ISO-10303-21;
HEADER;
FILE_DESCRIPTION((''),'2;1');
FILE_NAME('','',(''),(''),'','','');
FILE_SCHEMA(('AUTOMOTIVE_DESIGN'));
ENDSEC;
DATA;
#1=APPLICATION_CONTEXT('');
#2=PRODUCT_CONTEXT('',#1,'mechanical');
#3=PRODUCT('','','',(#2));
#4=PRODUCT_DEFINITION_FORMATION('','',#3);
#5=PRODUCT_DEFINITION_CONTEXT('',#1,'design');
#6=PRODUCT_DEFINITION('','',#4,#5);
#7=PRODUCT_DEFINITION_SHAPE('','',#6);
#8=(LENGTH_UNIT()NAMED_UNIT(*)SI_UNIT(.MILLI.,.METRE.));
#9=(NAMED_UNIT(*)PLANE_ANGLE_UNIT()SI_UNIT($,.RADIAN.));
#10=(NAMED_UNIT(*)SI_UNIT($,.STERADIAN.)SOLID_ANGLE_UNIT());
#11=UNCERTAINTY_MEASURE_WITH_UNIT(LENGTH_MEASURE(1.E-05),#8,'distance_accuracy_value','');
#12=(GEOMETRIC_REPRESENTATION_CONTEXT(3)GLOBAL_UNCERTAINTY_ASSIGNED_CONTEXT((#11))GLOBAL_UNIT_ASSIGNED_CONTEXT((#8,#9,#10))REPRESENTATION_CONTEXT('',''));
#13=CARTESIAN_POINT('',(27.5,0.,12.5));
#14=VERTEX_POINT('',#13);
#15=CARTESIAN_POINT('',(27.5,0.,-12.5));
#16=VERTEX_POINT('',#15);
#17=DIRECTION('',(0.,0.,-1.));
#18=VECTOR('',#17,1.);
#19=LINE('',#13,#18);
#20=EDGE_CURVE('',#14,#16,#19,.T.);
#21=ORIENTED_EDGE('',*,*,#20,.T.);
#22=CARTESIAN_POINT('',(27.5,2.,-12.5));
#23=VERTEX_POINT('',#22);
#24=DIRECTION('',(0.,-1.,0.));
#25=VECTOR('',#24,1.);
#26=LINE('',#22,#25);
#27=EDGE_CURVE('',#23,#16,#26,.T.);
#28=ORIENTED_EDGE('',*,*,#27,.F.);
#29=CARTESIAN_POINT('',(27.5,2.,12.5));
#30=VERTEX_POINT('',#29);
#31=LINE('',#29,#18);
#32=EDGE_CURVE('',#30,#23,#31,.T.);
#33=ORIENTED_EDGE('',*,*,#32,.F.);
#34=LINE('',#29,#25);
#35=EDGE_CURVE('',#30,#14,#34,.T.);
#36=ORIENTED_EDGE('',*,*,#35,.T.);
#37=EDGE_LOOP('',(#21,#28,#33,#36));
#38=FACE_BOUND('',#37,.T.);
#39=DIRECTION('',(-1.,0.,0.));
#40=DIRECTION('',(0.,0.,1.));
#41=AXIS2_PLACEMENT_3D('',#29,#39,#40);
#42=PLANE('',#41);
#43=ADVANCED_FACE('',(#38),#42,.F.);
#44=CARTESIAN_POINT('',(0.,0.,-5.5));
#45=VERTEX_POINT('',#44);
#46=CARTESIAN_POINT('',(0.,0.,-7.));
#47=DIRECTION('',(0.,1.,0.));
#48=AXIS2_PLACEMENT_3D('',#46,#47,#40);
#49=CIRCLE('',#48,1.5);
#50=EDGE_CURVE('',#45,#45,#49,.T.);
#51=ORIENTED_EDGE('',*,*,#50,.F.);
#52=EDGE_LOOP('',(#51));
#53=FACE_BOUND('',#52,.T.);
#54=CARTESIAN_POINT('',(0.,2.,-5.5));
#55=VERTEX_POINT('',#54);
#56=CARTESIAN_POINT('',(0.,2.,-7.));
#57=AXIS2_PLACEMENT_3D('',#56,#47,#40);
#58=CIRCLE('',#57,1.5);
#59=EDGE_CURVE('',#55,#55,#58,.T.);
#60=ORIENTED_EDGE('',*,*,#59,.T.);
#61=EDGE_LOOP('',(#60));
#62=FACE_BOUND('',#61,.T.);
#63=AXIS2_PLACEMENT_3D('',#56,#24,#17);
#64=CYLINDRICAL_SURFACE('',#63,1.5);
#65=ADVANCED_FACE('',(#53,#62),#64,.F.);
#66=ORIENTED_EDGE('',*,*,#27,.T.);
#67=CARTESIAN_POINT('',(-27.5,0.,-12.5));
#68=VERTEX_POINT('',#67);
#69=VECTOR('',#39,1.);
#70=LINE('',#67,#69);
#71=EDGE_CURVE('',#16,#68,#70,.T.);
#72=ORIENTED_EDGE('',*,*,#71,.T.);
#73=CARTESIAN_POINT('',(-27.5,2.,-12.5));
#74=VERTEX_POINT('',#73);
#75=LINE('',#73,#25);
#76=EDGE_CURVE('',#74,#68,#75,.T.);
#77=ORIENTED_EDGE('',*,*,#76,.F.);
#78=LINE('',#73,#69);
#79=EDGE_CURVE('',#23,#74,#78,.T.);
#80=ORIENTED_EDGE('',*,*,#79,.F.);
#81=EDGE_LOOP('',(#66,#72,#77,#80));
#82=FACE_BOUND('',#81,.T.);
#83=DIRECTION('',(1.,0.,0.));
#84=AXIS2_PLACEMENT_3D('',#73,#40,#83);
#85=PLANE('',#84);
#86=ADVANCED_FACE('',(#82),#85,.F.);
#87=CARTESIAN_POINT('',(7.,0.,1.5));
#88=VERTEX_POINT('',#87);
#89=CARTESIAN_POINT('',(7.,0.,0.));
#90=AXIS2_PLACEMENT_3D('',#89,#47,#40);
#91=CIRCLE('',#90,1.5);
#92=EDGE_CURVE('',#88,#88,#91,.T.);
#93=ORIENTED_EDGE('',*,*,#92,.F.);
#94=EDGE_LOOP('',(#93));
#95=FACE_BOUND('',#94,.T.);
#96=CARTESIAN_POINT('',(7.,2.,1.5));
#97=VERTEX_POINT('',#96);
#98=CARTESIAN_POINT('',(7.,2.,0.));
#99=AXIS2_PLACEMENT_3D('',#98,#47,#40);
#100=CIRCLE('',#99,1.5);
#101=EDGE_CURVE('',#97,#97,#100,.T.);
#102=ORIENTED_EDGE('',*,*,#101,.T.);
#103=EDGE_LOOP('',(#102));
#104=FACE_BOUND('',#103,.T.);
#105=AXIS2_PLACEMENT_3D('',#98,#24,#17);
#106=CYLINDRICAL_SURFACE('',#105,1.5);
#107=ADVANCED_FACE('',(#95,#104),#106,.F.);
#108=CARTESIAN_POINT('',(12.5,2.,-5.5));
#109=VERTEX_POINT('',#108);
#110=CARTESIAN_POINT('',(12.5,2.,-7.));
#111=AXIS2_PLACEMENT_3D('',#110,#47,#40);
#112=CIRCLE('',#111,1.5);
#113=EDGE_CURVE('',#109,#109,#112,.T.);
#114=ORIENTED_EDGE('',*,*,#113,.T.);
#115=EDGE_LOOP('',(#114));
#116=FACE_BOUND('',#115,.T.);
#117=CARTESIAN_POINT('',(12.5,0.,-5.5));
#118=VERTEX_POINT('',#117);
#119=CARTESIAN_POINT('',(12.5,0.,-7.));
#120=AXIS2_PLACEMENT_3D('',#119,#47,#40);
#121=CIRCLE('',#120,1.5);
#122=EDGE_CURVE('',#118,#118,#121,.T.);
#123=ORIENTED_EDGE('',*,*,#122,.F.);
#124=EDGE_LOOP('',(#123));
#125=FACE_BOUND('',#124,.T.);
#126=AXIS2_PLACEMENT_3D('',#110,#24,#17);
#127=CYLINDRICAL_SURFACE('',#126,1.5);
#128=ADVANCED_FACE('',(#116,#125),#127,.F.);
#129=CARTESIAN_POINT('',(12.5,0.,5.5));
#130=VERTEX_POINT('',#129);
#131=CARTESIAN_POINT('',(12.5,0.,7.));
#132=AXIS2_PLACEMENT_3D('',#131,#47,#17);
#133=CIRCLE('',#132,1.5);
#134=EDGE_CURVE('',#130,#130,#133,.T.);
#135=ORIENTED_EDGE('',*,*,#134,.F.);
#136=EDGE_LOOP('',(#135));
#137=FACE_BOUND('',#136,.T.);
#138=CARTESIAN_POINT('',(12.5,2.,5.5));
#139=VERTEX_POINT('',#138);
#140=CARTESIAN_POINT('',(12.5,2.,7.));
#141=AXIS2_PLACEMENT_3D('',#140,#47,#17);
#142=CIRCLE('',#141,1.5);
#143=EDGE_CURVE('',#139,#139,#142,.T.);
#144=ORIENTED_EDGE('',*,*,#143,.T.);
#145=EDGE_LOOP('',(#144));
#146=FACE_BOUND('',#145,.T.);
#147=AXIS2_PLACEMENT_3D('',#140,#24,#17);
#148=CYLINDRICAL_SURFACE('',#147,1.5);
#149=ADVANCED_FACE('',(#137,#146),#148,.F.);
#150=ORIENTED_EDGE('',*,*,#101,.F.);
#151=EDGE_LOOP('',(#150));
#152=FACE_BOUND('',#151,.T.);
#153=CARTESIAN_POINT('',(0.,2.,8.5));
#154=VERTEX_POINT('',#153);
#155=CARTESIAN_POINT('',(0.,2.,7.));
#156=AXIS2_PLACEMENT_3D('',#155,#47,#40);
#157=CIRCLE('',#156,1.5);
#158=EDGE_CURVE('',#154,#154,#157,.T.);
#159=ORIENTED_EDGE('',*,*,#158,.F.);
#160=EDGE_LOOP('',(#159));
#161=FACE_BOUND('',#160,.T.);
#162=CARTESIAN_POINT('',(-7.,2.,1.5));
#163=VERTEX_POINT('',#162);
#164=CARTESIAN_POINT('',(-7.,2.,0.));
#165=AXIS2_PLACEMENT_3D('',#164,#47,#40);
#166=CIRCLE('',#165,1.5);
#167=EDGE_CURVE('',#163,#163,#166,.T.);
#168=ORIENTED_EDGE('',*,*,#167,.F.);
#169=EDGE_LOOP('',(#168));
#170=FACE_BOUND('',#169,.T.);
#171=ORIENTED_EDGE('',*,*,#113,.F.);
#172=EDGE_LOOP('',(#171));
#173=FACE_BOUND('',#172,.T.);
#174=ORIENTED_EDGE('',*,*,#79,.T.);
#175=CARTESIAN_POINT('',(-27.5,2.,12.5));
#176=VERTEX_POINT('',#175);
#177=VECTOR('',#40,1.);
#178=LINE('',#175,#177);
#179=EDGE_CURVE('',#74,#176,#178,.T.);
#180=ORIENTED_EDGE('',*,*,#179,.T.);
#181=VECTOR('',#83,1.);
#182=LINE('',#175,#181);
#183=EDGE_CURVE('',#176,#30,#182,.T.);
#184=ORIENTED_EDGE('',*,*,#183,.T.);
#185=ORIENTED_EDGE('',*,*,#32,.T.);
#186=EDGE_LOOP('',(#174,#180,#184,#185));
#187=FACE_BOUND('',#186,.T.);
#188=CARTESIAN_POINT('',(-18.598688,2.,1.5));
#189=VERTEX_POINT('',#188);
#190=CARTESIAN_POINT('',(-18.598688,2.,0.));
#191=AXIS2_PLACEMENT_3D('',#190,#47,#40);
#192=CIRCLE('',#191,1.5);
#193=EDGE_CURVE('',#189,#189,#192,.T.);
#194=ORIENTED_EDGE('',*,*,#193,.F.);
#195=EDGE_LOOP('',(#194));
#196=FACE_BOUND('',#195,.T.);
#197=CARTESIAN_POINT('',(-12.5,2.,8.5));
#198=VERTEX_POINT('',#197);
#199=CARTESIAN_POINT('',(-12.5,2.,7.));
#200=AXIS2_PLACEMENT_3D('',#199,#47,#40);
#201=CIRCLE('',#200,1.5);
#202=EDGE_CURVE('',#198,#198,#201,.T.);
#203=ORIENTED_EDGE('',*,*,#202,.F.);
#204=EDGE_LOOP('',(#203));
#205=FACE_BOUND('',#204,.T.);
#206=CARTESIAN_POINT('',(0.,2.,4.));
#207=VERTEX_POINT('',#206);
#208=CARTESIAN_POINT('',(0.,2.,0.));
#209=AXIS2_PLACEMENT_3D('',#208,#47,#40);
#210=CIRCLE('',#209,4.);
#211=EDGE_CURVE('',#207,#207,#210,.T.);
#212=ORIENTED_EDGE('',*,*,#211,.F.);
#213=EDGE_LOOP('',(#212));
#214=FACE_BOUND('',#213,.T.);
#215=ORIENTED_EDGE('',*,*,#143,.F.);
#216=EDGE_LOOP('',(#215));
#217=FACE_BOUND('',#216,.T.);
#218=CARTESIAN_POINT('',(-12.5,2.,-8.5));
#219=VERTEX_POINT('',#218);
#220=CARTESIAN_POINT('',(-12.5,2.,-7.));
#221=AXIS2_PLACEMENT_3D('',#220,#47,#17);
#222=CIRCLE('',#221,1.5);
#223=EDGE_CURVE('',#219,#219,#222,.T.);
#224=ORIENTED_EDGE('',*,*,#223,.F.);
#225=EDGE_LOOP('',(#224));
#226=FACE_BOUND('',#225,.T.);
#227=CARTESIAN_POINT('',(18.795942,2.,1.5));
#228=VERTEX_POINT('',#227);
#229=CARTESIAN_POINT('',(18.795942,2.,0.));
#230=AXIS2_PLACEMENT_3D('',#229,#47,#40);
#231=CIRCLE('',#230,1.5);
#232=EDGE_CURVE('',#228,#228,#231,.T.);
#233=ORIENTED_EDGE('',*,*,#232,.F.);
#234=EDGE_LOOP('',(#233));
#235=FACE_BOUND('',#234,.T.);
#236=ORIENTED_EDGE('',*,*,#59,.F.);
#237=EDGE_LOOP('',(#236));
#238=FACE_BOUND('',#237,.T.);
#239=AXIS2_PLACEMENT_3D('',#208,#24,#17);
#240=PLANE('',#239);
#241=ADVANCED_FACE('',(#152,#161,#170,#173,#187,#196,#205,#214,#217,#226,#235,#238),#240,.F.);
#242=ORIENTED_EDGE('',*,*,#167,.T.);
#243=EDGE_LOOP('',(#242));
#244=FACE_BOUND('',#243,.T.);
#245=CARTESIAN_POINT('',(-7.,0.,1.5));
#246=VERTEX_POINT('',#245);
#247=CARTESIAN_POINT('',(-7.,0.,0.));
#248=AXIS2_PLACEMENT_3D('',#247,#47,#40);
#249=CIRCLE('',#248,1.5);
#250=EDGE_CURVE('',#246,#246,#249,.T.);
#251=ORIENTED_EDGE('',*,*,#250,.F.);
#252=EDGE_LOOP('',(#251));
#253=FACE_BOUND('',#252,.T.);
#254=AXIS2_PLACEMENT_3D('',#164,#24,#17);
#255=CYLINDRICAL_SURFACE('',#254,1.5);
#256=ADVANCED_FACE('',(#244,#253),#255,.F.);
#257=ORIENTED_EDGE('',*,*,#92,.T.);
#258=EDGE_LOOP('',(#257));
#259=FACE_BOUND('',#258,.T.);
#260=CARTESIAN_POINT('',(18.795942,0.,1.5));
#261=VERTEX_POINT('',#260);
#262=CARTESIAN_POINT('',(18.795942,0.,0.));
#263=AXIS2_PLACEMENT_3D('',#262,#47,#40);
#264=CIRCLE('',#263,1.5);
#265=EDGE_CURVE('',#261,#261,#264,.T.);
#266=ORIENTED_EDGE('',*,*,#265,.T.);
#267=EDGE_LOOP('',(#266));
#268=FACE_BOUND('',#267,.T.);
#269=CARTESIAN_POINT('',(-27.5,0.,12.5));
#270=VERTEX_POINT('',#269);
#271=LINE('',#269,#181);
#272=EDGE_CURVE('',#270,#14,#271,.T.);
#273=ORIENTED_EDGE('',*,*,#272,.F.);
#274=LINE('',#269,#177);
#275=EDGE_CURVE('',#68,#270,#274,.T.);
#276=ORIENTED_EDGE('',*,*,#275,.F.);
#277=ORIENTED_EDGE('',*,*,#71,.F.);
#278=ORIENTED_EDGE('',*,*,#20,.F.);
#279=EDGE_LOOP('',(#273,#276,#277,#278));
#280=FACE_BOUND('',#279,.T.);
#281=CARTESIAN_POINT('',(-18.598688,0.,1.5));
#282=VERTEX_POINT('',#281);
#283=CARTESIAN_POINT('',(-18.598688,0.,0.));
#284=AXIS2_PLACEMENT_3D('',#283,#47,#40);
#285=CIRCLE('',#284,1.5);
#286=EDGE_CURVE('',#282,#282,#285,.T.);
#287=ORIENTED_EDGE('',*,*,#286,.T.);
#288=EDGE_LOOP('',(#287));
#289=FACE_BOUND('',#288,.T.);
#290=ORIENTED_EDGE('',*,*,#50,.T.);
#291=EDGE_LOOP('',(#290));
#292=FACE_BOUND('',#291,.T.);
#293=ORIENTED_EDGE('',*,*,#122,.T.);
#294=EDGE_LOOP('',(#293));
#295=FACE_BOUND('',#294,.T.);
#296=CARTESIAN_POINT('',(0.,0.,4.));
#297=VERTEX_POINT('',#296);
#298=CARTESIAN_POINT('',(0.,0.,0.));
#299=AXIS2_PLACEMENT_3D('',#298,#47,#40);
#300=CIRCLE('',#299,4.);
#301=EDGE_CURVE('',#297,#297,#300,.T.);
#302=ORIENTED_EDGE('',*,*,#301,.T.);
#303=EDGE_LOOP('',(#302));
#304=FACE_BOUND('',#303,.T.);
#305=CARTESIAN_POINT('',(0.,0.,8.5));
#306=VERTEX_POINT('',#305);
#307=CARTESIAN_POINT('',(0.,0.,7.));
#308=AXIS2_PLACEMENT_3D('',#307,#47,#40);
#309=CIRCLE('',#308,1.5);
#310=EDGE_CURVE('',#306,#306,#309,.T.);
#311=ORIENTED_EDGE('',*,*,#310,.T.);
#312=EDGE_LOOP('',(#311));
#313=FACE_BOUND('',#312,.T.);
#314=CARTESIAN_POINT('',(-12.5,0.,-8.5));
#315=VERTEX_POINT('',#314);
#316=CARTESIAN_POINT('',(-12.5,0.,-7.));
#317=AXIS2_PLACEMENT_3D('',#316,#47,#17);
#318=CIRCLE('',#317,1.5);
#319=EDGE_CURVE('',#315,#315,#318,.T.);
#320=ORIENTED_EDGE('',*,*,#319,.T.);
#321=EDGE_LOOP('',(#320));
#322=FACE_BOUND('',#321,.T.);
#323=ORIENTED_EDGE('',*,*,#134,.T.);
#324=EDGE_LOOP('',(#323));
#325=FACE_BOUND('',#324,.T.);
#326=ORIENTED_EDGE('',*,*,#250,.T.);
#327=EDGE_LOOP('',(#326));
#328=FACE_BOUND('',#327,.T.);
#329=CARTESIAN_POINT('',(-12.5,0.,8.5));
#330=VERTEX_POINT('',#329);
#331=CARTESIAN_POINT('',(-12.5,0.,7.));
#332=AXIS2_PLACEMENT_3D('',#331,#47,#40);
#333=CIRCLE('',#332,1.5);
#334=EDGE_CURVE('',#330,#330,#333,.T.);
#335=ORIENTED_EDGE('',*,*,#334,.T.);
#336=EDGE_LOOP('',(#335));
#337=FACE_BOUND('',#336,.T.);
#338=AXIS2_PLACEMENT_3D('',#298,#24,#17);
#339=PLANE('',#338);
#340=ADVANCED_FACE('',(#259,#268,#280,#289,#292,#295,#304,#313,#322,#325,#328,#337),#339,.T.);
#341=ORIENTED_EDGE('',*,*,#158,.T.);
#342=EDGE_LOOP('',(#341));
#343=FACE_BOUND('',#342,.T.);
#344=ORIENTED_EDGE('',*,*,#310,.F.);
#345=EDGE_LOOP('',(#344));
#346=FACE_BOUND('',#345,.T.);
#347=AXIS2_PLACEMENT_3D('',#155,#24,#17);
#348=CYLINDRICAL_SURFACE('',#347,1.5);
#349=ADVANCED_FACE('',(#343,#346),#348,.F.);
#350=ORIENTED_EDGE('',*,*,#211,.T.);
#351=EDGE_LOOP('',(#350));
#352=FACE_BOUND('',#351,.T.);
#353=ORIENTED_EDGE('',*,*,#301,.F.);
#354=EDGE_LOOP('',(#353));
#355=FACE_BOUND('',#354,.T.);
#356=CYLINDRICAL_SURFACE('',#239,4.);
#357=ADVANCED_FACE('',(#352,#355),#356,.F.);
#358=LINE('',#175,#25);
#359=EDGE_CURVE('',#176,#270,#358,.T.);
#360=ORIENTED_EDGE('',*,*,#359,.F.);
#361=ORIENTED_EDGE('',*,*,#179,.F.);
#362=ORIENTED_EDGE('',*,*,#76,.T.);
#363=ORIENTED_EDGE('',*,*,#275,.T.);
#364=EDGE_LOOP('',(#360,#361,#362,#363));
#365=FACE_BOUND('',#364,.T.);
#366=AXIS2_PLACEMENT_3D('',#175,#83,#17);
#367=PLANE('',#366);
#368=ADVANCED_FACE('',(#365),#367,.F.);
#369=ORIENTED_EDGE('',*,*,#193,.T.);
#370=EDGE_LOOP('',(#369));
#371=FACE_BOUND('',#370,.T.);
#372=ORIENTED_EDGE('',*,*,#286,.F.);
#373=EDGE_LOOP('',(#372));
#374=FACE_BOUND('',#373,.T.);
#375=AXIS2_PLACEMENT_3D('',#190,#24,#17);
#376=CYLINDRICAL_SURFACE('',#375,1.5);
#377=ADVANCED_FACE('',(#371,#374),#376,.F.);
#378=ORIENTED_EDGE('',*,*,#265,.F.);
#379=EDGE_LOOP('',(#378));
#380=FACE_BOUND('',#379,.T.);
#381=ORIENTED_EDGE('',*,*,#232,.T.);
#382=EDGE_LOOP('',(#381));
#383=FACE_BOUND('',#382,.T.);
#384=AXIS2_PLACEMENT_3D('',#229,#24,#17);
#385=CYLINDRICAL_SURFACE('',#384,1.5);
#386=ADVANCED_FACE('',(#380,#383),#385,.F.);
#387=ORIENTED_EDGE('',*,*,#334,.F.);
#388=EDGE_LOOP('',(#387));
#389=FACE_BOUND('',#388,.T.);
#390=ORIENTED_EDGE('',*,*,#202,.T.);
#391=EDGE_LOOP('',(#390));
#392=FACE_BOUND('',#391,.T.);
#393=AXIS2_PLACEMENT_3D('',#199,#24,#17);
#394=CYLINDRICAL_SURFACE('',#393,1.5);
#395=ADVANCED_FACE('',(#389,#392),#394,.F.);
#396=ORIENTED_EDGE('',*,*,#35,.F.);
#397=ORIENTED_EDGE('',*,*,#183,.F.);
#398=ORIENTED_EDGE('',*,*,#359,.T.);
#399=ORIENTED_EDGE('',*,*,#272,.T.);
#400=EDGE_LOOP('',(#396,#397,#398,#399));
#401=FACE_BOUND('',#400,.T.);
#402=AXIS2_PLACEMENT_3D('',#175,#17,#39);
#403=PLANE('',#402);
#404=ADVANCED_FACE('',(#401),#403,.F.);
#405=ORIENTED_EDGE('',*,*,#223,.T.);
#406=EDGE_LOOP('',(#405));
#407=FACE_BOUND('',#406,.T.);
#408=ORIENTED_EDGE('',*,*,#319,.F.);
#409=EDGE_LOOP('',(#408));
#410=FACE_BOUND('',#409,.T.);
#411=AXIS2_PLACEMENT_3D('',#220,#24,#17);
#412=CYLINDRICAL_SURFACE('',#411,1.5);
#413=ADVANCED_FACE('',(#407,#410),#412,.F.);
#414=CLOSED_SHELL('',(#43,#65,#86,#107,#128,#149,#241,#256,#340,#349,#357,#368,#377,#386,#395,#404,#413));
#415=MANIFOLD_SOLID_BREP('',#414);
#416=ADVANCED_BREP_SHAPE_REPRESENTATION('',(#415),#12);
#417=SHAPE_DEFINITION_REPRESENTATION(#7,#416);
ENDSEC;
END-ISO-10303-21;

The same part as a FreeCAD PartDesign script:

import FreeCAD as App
import Part
import Sketcher


def add_polygon(sketch, points):
    """Adds a closed chain of lines whose ends are joined by coincident constraints."""
    first, n = sketch.GeometryCount, len(points)
    for a, b in zip(points, points[1:] + points[:1]):
        sketch.addGeometry(Part.LineSegment(App.Vector(*a, 0), App.Vector(*b, 0)), False)
    for i in range(n):
        sketch.addConstraint(Sketcher.Constraint("Coincident", first + i, 2, first + (i + 1) % n, 1))

doc = App.newDocument("Part")
body = doc.addObject("PartDesign::Body", "Body")

sketch1 = doc.addObject("Sketcher::SketchObject", "Sketch")
body.addObject(sketch1)
sketch1.AttachmentSupport = (doc.XZ_Plane, [""])
sketch1.MapMode = "FlatFace"
add_polygon(sketch1, [(-27.5, -12.5), (-27.5, 12.5), (27.5, 12.5), (27.5, -12.5)])
sketch1.addGeometry(Part.Circle(App.Vector(-12.5, 7, 0), App.Vector(0, 0, 1), 1.5), False)
sketch1.addGeometry(Part.Circle(App.Vector(0, 7, 0), App.Vector(0, 0, 1), 1.5), False)
sketch1.addGeometry(Part.Circle(App.Vector(12.5, 7, 0), App.Vector(0, 0, 1), 1.5), False)
sketch1.addGeometry(Part.Circle(App.Vector(-18.6, 0, 0), App.Vector(0, 0, 1), 1.5), False)
sketch1.addGeometry(Part.Circle(App.Vector(-7, 0, 0), App.Vector(0, 0, 1), 1.5), False)
sketch1.addGeometry(Part.Circle(App.Vector(0, 0, 0), App.Vector(0, 0, 1), 4), False)
sketch1.addGeometry(Part.Circle(App.Vector(-12.5, -7, 0), App.Vector(0, 0, 1), 1.5), False)
sketch1.addGeometry(Part.Circle(App.Vector(0, -7, 0), App.Vector(0, 0, 1), 1.5), False)
sketch1.addGeometry(Part.Circle(App.Vector(7, 0, 0), App.Vector(0, 0, 1), 1.5), False)
sketch1.addGeometry(Part.Circle(App.Vector(18.8, 0, 0), App.Vector(0, 0, 1), 1.5), False)
sketch1.addGeometry(Part.Circle(App.Vector(12.5, -7, 0), App.Vector(0, 0, 1), 1.5), False)
sketch1.addConstraint([
    Sketcher.Constraint("Vertical", 0),
    Sketcher.Constraint("Horizontal", 1),
    Sketcher.Constraint("Vertical", 2),
    Sketcher.Constraint("Horizontal", 3),
    Sketcher.Constraint("Coincident", 9, 3, -1, 1),
    Sketcher.Constraint("Equal", 4, 5),
    Sketcher.Constraint("Equal", 5, 6),
    Sketcher.Constraint("Equal", 6, 7),
    Sketcher.Constraint("Equal", 7, 8),
    Sketcher.Constraint("Equal", 8, 10),
    Sketcher.Constraint("Equal", 10, 11),
    Sketcher.Constraint("Equal", 11, 12),
    Sketcher.Constraint("Equal", 12, 13),
    Sketcher.Constraint("Equal", 13, 14),
    Sketcher.Constraint("Symmetric", 6, 3, 10, 3, -1, 1),
    Sketcher.Constraint("Symmetric", 5, 3, 11, 3, -1, 1),
    Sketcher.Constraint("Symmetric", 8, 3, 12, 3, -1, 1),
    Sketcher.Constraint("Symmetric", 4, 3, 14, 3, -1, 1),
    Sketcher.Constraint("Symmetric", 0, 2, 2, 2, -1, 1),
    Sketcher.Constraint("Symmetric", 4, 3, 6, 3, -2),
    Sketcher.Constraint("PointOnObject", 5, 3, -2),
    Sketcher.Constraint("PointOnObject", 7, 3, -1),
    Sketcher.Constraint("PointOnObject", 8, 3, -1),
    Sketcher.Constraint("PointOnObject", 13, 3, -1),
    Sketcher.Constraint("Horizontal", 4, 3, 5, 3),
    Sketcher.Constraint("Diameter", 4, 3.0),
    Sketcher.Constraint("Diameter", 9, 8.0),
    Sketcher.Constraint("DistanceX", 1, 1, 1, 2, 55.0),
    Sketcher.Constraint("DistanceY", 0, 1, 0, 2, 25.0),
    Sketcher.Constraint("DistanceY", -1, 1, 4, 3, 7.0),
    Sketcher.Constraint("DistanceX", 8, 3, -1, 1, 7.0),
    Sketcher.Constraint("DistanceX", 4, 3, 6, 3, 25.0),
    Sketcher.Constraint("DistanceX", -1, 1, 13, 3, 18.795942),
    Sketcher.Constraint("DistanceX", 7, 3, -1, 1, 18.598688),
])
pad1 = doc.addObject("PartDesign::Pad", "Pad")
body.addObject(pad1)
pad1.Profile = sketch1
pad1.Length = 2
pad1.Reversed = True

doc.recompute()
